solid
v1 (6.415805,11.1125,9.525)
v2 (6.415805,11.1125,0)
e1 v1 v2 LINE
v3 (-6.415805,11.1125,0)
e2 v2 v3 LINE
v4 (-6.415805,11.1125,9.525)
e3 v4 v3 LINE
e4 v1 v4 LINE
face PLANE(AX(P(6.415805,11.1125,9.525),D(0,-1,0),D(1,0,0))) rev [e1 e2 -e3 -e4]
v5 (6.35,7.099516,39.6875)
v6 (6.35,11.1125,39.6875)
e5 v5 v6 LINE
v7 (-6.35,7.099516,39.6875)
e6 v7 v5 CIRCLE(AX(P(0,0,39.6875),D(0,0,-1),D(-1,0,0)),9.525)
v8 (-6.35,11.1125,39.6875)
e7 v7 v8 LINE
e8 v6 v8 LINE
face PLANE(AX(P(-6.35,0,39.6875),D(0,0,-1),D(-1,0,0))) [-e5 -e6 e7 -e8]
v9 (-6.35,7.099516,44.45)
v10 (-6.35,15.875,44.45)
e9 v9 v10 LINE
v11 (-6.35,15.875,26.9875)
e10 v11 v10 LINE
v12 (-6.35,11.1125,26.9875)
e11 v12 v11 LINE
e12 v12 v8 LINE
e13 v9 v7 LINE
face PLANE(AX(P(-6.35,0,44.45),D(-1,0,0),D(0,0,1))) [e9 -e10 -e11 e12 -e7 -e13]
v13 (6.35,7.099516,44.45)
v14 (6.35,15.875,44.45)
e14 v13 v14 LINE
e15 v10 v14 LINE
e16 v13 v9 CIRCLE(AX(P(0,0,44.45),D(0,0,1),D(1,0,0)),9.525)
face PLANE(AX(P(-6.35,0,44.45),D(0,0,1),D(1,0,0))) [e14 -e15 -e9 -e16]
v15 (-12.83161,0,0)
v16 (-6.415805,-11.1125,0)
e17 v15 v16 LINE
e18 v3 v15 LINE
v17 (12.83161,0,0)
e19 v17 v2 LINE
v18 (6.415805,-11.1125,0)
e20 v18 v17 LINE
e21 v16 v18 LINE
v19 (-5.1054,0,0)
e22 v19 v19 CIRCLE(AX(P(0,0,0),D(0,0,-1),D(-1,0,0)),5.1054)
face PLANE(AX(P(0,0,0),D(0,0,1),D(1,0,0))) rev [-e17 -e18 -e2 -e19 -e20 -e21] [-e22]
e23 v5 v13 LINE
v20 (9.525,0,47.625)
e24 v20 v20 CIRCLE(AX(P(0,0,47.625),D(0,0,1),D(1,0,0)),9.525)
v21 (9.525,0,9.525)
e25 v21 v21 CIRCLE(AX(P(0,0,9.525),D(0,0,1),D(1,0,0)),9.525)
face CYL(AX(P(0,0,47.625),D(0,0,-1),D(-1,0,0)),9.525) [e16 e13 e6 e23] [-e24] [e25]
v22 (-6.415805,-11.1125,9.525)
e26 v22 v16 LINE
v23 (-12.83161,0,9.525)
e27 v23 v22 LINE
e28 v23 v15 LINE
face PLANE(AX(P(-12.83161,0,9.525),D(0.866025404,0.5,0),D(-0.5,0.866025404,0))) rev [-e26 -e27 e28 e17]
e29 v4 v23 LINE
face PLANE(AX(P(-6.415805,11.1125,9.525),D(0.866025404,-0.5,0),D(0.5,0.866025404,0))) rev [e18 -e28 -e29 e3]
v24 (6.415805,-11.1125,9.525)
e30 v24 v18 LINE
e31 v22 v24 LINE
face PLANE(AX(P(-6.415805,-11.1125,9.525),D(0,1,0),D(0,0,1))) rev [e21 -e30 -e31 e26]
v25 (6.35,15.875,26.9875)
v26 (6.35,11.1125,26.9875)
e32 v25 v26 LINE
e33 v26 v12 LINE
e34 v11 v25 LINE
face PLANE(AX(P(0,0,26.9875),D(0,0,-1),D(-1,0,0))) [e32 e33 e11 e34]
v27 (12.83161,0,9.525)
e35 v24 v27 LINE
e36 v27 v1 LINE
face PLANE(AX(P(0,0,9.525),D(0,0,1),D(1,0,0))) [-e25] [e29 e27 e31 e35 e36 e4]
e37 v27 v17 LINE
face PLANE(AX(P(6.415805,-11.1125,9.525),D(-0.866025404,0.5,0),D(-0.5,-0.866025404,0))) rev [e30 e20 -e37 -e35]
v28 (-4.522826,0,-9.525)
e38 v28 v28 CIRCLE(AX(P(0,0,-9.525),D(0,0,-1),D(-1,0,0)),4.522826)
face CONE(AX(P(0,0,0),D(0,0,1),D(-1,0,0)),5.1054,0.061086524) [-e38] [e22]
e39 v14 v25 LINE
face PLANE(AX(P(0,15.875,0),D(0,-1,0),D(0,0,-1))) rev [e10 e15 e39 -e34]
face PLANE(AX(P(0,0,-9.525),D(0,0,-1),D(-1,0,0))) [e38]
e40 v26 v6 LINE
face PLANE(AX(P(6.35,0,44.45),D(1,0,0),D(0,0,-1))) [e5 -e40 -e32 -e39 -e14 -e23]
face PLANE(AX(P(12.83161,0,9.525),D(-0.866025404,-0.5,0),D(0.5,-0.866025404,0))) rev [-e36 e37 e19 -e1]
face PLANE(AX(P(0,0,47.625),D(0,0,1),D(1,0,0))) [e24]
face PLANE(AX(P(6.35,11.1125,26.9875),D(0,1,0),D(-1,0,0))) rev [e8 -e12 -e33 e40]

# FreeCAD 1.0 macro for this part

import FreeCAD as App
import Part
import Sketcher
from FreeCAD import Vector
Q = App.Units.Quantity

doc = App.newDocument("Part")
body = doc.addObject("PartDesign::Body", "Body")

sketch1 = body.newObject("Sketcher::SketchObject", "Sketch")
sketch1.AttachmentSupport = (doc.getObject("XY_Plane"), [""])
sketch1.MapMode = "FlatFace"
sketch1.addGeometry([
    Part.LineSegment(Vector(6.415805, 11.1125, 0), Vector(-6.415805, 11.1125, 0)),
    Part.LineSegment(Vector(-6.415805, 11.1125, 0), Vector(-12.83161, 0, 0)),
    Part.LineSegment(Vector(-12.83161, 0, 0), Vector(-6.415805, -11.1125, 0)),
    Part.LineSegment(Vector(-6.415805, -11.1125, 0), Vector(6.415805, -11.1125, 0)),
    Part.LineSegment(Vector(6.415805, -11.1125, 0), Vector(12.83161, 0, 0)),
    Part.LineSegment(Vector(12.83161, 0, 0), Vector(6.415805, 11.1125, 0)),
], False)
sketch1.addConstraint([
    Sketcher.Constraint("Coincident", 0, 2, 1, 1),
    Sketcher.Constraint("Coincident", 1, 2, 2, 1),
    Sketcher.Constraint("Coincident", 2, 2, 3, 1),
    Sketcher.Constraint("Coincident", 3, 2, 4, 1),
    Sketcher.Constraint("Coincident", 4, 2, 5, 1),
    Sketcher.Constraint("Coincident", 5, 2, 0, 1),
    Sketcher.Constraint("Horizontal", 0),
    Sketcher.Constraint("Horizontal", 3),
    Sketcher.Constraint("Symmetric", 0, 2, 3, 2, -1, 1),
    Sketcher.Constraint("Symmetric", 1, 2, 4, 2, -1, 1),
    Sketcher.Constraint("PointOnObject", 1, 2, -1),
    Sketcher.Constraint("Parallel", 2, 5),
    Sketcher.Constraint("Vertical", 0, 2, 2, 2),
    Sketcher.Constraint("Angle", 1, Q("-120 deg")),
    Sketcher.Constraint("DistanceY", -1, 1, 0, 2, Q("0.4375 in")),
    Sketcher.Constraint("DistanceX", 0, 2, 0, 1, Q("12.83161 mm")),
])
pad1 = body.newObject("PartDesign::Pad", "Pad")
pad1.Profile = sketch1
pad1.Length = Q("0.375 in")

sketch2 = body.newObject("Sketcher::SketchObject", "Sketch001")
sketch2.AttachmentSupport = (doc.getObject("XY_Plane"), [""])
sketch2.MapMode = "FlatFace"
sketch2.addGeometry(Part.Circle(Vector(0, 0, 0), Vector(0, 0, 1), 5.1054), False)
sketch2.addConstraint([
    Sketcher.Constraint("Coincident", 0, 3, -1, 1),
    Sketcher.Constraint("Diameter", 0, Q("0.402 in")),
])
pad2 = body.newObject("PartDesign::Pad", "Pad001")
pad2.Profile = sketch2
pad2.Length = Q("0.375 in")
pad2.Reversed = True
pad2.TaperAngle = -3.5

sketch3 = body.newObject("Sketcher::SketchObject", "Sketch002")
sketch3.AttachmentSupport = (doc.getObject("XY_Plane"), [""])
sketch3.MapMode = "FlatFace"
sketch3.AttachmentOffset = App.Placement(Vector(0, 0, 0.375 * 25.4), App.Rotation())
sketch3.addGeometry(Part.Circle(Vector(0, 0, 0), Vector(0, 0, 1), 9.525), False)
sketch3.addConstraint([
    Sketcher.Constraint("Coincident", 0, 3, -1, 1),
    Sketcher.Constraint("Diameter", 0, Q("0.75 in")),
])
pad3 = body.newObject("PartDesign::Pad", "Pad002")
pad3.Profile = sketch3
pad3.Length = Q("1.5 in")

sketch4 = body.newObject("Sketcher::SketchObject", "Sketch003")
sketch4.AttachmentSupport = (doc.getObject("XZ_Plane"), [""])
sketch4.MapMode = "FlatFace"
sketch4.AttachmentOffset = App.Placement(Vector(0, 0, -0.375 * 25.4), App.Rotation())
sketch4.addGeometry([
    Part.LineSegment(Vector(-6.35, 39.6875, 0), Vector(-6.35, 44.45, 0)),
    Part.LineSegment(Vector(-6.35, 44.45, 0), Vector(6.35, 44.45, 0)),
    Part.LineSegment(Vector(6.35, 44.45, 0), Vector(6.35, 39.6875, 0)),
    Part.LineSegment(Vector(6.35, 39.6875, 0), Vector(-6.35, 39.6875, 0)),
], False)
sketch4.addConstraint([
    Sketcher.Constraint("Coincident", 0, 2, 1, 1),
    Sketcher.Constraint("Coincident", 1, 2, 2, 1),
    Sketcher.Constraint("Coincident", 2, 2, 3, 1),
    Sketcher.Constraint("Coincident", 3, 2, 0, 1),
    Sketcher.Constraint("Vertical", 0),
    Sketcher.Constraint("Horizontal", 1),
    Sketcher.Constraint("Vertical", 2),
    Sketcher.Constraint("Horizontal", 3),
    Sketcher.Constraint("DistanceX", 1, 1, 1, 2, Q("0.5 in")),
    Sketcher.Constraint("DistanceY", 0, 1, 0, 2, Q("0.1875 in")),
    Sketcher.Constraint("DistanceX", 0, 2, -1, 1, Q("0.25 in")),
    Sketcher.Constraint("DistanceY", -1, 1, 0, 2, Q("1.75 in")),
])
pad4 = body.newObject("PartDesign::Pad", "Pad003")
pad4.Profile = sketch4
pad4.Type = "TwoLengths"
pad4.Length = Q("0.25 in")
pad4.Length2 = Q("0.375 in")
pad4.Reversed = True

sketch5 = body.newObject("Sketcher::SketchObject", "Sketch004")
sketch5.AttachmentSupport = (doc.getObject("XY_Plane"), [""])
sketch5.MapMode = "FlatFace"
sketch5.AttachmentOffset = App.Placement(Vector(0, 0, 1.5625 * 25.4), App.Rotation())
sketch5.addGeometry([
    Part.LineSegment(Vector(6.35, 15.875, 0), Vector(6.35, 11.1125, 0)),
    Part.LineSegment(Vector(6.35, 11.1125, 0), Vector(-6.35, 11.1125, 0)),
    Part.LineSegment(Vector(-6.35, 11.1125, 0), Vector(-6.35, 15.875, 0)),
    Part.LineSegment(Vector(-6.35, 15.875, 0), Vector(6.35, 15.875, 0)),
], False)
sketch5.addConstraint([
    Sketcher.Constraint("Coincident", 0, 2, 1, 1),
    Sketcher.Constraint("Coincident", 1, 2, 2, 1),
    Sketcher.Constraint("Coincident", 2, 2, 3, 1),
    Sketcher.Constraint("Coincident", 3, 2, 0, 1),
    Sketcher.Constraint("Vertical", 0),
    Sketcher.Constraint("Horizontal", 1),
    Sketcher.Constraint("Vertical", 2),
    Sketcher.Constraint("Horizontal", 3),
    Sketcher.Constraint("DistanceX", 1, 2, 1, 1, Q("0.5 in")),
    Sketcher.Constraint("DistanceY", 0, 2, 0, 1, Q("0.1875 in")),
    Sketcher.Constraint("DistanceX", -1, 1, 0, 2, Q("0.25 in")),
    Sketcher.Constraint("DistanceY", -1, 1, 0, 2, Q("0.4375 in")),
])
pad5 = body.newObject("PartDesign::Pad", "Pad004")
pad5.Profile = sketch5
pad5.Length = Q("0.5 in")
pad5.Reversed = True

doc.recompute()
